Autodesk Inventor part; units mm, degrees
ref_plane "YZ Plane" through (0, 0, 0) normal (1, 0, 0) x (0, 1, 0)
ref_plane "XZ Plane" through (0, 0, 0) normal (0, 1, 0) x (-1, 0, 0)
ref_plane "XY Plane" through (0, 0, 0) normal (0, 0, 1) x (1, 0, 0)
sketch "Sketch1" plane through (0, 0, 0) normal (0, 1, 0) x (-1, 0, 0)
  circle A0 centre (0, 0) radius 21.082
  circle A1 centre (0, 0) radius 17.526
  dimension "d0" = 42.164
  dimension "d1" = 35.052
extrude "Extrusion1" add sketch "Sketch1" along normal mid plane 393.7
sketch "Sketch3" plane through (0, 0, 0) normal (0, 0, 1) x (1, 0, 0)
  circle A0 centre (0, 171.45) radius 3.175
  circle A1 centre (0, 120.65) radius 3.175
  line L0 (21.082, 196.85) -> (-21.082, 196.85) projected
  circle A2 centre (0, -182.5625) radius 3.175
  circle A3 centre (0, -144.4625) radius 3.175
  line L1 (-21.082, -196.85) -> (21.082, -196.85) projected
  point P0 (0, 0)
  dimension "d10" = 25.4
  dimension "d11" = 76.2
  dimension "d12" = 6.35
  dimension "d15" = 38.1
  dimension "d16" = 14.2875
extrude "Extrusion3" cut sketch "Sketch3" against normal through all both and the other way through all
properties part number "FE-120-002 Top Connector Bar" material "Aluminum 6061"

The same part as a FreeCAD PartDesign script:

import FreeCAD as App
import Part
import Sketcher
from FreeCAD import Vector
Q = App.Units.Quantity

doc = App.newDocument("Part")
params = doc.addObject("Spreadsheet::Sheet", "Params")
for row, (alias, value) in enumerate([
    ("sketch1_diameter", "1.66 in"),
    ("sketch1_diameter2", "1.38 in"),
    ("pad1_length", "15.5 in"),
    ("sketch2_diameter", "0.25 in"),
], start=1):
    params.set(f"A{row}", alias)
    params.set(f"B{row}", "=" + value)
    params.setAlias(f"B{row}", alias)

body = doc.addObject("PartDesign::Body", "Body")

# Sketch on XZ plane
sketch1 = body.newObject("Sketcher::SketchObject", "Sketch")
sketch1.AttachmentSupport = (doc.getObject("XZ_Plane"), [""])
sketch1.MapMode = "FlatFace"
sketch1.addGeometry(Part.Circle(Vector(0, 0, 0), Vector(0, 0, 1), 21.082), False)
sketch1.addGeometry(Part.Circle(Vector(0, 0, 0), Vector(0, 0, 1), 17.526), False)
sketch1.addConstraint(Sketcher.Constraint("Coincident", 0, 3, -1, 1))
sketch1.addConstraint(Sketcher.Constraint("Coincident", 1, 3, -1, 1))
sketch1.addConstraint(Sketcher.Constraint("Diameter", 0, Q("1.66 in")))
sketch1.addConstraint(Sketcher.Constraint("Diameter", 1, Q("1.38 in")))
sketch1.setExpression("Constraints[2]", "Params.sketch1_diameter")
sketch1.setExpression("Constraints[3]", "Params.sketch1_diameter2")
pad1 = body.newObject("PartDesign::Pad", "Pad")
pad1.Profile = sketch1
pad1.setExpression("Length", "Params.pad1_length")
pad1.Midplane = True

# Sketch on XY plane
sketch2 = body.newObject("Sketcher::SketchObject", "Sketch001")
sketch2.AttachmentSupport = (doc.getObject("XY_Plane"), [""])
sketch2.MapMode = "FlatFace"
sketch2.addGeometry(Part.Circle(Vector(0, 171.45, 0), Vector(0, 0, 1), 3.175), False)
sketch2.addGeometry(Part.Circle(Vector(0, 120.65, 0), Vector(0, 0, 1), 3.175), False)
sketch2.addGeometry(Part.Circle(Vector(0, -182.5625, 0), Vector(0, 0, 1), 3.175), False)
sketch2.addGeometry(Part.Circle(Vector(0, -144.4625, 0), Vector(0, 0, 1), 3.175), False)
sketch2.addConstraint(Sketcher.Constraint("Equal", 0, 1))
sketch2.addConstraint(Sketcher.Constraint("Equal", 1, 2))
sketch2.addConstraint(Sketcher.Constraint("Equal", 2, 3))
sketch2.addConstraint(Sketcher.Constraint("PointOnObject", 0, 3, -2))
sketch2.addConstraint(Sketcher.Constraint("PointOnObject", 1, 3, -2))
sketch2.addConstraint(Sketcher.Constraint("PointOnObject", 2, 3, -2))
sketch2.addConstraint(Sketcher.Constraint("PointOnObject", 3, 3, -2))
sketch2.addConstraint(Sketcher.Constraint("Diameter", 0, Q("0.25 in")))
sketch2.addConstraint(Sketcher.Constraint("DistanceY", 2, 3, 3, 3, Q("1.5 in")))
sketch2.addConstraint(Sketcher.Constraint("DistanceY", 1, 3, 0, 3, Q("2 in")))
sketch2.addConstraint(Sketcher.Constraint("DistanceY", -1, 1, 0, 3, Q("6.75 in")))
sketch2.addConstraint(Sketcher.Constraint("DistanceY", 2, 3, -1, 1, Q("7.1875 in")))
sketch2.setExpression("Constraints[7]", "Params.sketch2_diameter")
pocket1 = body.newObject("PartDesign::Pocket", "Pocket")
pocket1.Profile = sketch2
pocket1.Type = "ThroughAll"
pocket1.Midplane = True

doc.recompute()
